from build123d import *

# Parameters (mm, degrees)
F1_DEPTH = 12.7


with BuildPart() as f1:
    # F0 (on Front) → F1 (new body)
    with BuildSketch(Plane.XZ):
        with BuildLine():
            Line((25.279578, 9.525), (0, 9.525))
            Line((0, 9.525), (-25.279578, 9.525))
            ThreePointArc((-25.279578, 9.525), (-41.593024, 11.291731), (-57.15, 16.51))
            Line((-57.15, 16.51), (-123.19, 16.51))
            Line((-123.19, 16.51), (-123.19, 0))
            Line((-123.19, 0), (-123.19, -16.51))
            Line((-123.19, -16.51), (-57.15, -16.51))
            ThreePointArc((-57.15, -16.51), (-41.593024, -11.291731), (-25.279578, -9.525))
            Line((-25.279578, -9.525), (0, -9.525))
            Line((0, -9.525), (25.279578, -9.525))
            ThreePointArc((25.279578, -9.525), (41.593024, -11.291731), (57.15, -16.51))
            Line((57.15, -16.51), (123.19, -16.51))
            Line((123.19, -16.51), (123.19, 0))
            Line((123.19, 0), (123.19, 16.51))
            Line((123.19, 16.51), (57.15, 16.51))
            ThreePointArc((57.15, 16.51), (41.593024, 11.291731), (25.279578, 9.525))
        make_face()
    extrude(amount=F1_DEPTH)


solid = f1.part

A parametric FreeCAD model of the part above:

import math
import FreeCAD as App
import Part
import Sketcher
from FreeCAD import Vector
Q = App.Units.Quantity

doc = App.newDocument("Part")
body = doc.addObject("PartDesign::Body", "Body")

sketch1 = body.newObject("Sketcher::SketchObject", "Sketch")
sketch1.AttachmentSupport = (doc.getObject("XZ_Plane"), [""])
sketch1.MapMode = "FlatFace"
sketch1.addGeometry([
    Part.LineSegment(Vector(25, 10, 0), Vector(-25, 10, 0)),
    Part.ArcOfCircle(Part.Circle(Vector(-25, 86, 0), Vector(0, 0, 1), 76), math.radians(-115), math.radians(-90)),
    Part.LineSegment(Vector(-57, 17, 0), Vector(-123, 17, 0)),
    Part.LineSegment(Vector(-123, 17, 0), Vector(-123, -17, 0)),
    Part.LineSegment(Vector(-123, -17, 0), Vector(-57, -17, 0)),
    Part.ArcOfCircle(Part.Circle(Vector(-25, -86, 0), Vector(0, 0, 1), 76), math.radians(90), math.radians(115)),
    Part.LineSegment(Vector(-25, -10, 0), Vector(25, -10, 0)),
    Part.ArcOfCircle(Part.Circle(Vector(25, -86, 0), Vector(0, 0, 1), 76), math.radians(65), math.radians(90)),
    Part.LineSegment(Vector(57, -17, 0), Vector(123, -17, 0)),
    Part.LineSegment(Vector(123, -17, 0), Vector(123, 17, 0)),
    Part.LineSegment(Vector(123, 17, 0), Vector(57, 17, 0)),
    Part.ArcOfCircle(Part.Circle(Vector(25, 86, 0), Vector(0, 0, 1), 76), math.radians(-90), math.radians(-65)),
], False)
sketch1.addConstraint([
    Sketcher.Constraint("Tangent", 0, 2, 1, 2),
    Sketcher.Constraint("Coincident", 1, 1, 2, 1),
    Sketcher.Constraint("Coincident", 2, 2, 3, 1),
    Sketcher.Constraint("Coincident", 3, 2, 4, 1),
    Sketcher.Constraint("Coincident", 4, 2, 5, 2),
    Sketcher.Constraint("Tangent", 5, 1, 6, 1),
    Sketcher.Constraint("Tangent", 6, 2, 7, 2),
    Sketcher.Constraint("Coincident", 7, 1, 8, 1),
    Sketcher.Constraint("Coincident", 8, 2, 9, 1),
    Sketcher.Constraint("Coincident", 9, 2, 10, 1),
    Sketcher.Constraint("Coincident", 10, 2, 11, 2),
    Sketcher.Constraint("Tangent", 11, 1, 0, 1),
    Sketcher.Constraint("Horizontal", 0),
    Sketcher.Constraint("Horizontal", 2),
    Sketcher.Constraint("Vertical", 3),
    Sketcher.Constraint("Horizontal", 4),
    Sketcher.Constraint("Horizontal", 6),
    Sketcher.Constraint("Horizontal", 8),
    Sketcher.Constraint("Vertical", 9),
    Sketcher.Constraint("Horizontal", 10),
    Sketcher.Constraint("Equal", 1, 5),
    Sketcher.Constraint("Equal", 5, 7),
    Sketcher.Constraint("Equal", 7, 11),
    Sketcher.Constraint("Symmetric", 1, 3, 7, 3, -1, 1),
    Sketcher.Constraint("Symmetric", 2, 2, 8, 2, -1, 1),
    Sketcher.Constraint("Symmetric", 4, 2, 10, 2, -1, 1),
    Sketcher.Constraint("Symmetric", 4, 2, 7, 1, -2),
    Sketcher.Constraint("DistanceX", 2, 2, 2, 1, Q("2.6 in")),
    Sketcher.Constraint("DistanceY", 3, 2, 3, 1, Q("1.3 in")),
    Sketcher.Constraint("DistanceX", 1, 1, -1, 1, Q("2.25 in")),
    Sketcher.Constraint("DistanceY", 5, 1, 0, 2, Q("0.75 in")),
    Sketcher.Constraint("Radius", 1, 76.199988),
])
pad1 = body.newObject("PartDesign::Pad", "Pad")
pad1.Profile = sketch1
pad1.Length = Q("0.5 in")

doc.recompute()
